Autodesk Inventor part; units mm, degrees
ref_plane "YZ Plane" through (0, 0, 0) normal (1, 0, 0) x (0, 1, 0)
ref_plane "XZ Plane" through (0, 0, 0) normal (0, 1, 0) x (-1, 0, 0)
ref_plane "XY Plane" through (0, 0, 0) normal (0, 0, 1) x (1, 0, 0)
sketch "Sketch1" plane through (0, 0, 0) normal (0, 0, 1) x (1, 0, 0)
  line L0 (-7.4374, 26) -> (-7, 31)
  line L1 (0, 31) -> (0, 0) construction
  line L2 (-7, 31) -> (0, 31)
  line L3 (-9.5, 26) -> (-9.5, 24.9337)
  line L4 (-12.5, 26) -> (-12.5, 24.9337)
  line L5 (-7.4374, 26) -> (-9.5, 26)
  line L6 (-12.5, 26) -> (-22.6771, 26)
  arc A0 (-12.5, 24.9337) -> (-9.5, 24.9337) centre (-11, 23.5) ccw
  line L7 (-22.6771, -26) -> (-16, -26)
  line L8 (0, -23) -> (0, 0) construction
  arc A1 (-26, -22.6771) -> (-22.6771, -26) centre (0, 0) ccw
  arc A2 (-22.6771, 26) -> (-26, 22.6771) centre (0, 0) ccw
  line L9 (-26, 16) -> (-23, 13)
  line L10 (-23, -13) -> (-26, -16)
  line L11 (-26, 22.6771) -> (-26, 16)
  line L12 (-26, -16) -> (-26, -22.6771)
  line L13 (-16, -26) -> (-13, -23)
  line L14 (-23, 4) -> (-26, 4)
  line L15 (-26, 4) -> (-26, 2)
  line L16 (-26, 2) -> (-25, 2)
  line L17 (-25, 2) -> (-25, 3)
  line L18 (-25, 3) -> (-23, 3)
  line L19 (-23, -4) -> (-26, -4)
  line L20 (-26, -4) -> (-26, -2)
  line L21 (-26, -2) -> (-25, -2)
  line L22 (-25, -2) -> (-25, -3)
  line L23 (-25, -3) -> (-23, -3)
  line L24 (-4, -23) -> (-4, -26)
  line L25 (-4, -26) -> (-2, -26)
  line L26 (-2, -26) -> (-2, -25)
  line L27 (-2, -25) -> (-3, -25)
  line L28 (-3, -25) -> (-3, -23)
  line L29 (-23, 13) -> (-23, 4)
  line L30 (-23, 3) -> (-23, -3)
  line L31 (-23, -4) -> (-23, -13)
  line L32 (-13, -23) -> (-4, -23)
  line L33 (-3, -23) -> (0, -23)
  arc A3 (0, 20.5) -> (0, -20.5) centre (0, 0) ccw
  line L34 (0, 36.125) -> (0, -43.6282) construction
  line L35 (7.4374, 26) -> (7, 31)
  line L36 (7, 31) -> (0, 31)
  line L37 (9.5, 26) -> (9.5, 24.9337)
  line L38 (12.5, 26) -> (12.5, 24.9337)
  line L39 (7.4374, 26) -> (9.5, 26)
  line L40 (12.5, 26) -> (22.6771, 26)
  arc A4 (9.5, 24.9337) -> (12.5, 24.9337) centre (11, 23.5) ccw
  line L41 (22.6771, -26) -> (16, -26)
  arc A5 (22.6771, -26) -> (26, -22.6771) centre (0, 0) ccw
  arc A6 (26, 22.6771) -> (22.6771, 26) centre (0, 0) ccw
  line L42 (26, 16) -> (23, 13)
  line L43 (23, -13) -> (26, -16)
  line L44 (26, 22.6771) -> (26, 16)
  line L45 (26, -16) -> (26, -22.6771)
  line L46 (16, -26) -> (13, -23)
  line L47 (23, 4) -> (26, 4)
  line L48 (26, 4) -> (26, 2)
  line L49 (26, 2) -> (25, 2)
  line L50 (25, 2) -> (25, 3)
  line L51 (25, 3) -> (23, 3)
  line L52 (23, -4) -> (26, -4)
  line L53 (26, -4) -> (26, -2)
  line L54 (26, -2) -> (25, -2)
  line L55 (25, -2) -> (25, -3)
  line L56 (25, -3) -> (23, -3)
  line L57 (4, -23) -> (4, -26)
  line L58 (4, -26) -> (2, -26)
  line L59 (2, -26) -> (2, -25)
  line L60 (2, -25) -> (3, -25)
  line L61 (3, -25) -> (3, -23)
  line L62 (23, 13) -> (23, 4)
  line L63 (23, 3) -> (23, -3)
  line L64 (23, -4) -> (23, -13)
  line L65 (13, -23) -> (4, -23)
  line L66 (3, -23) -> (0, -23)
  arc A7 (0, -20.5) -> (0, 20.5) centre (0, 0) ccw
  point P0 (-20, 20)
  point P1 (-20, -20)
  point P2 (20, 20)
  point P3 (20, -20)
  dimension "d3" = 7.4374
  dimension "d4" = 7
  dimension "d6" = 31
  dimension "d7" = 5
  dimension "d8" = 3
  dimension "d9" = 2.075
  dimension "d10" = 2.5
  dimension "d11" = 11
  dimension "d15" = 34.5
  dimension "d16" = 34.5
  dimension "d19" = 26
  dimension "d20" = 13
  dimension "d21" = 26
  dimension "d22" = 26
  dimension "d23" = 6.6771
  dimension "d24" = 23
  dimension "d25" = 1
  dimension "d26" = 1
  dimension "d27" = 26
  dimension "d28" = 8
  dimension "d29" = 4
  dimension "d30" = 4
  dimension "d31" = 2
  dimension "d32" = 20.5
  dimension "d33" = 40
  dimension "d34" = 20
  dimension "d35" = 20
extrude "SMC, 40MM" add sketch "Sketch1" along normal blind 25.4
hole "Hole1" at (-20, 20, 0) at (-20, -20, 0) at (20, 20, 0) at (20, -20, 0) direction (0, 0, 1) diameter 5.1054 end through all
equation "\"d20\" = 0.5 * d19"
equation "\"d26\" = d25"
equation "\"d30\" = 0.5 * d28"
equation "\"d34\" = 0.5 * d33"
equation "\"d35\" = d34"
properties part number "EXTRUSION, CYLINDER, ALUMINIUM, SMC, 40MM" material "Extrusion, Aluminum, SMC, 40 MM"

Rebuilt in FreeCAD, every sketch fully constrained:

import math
import FreeCAD as App
import Part
import Sketcher
from FreeCAD import Vector
Q = App.Units.Quantity

doc = App.newDocument("Part")
body = doc.addObject("PartDesign::Body", "Body")

# Sketch on XY plane
sketch1 = body.newObject("Sketcher::SketchObject", "Sketch")
sketch1.AttachmentSupport = (doc.getObject("XY_Plane"), [""])
sketch1.MapMode = "FlatFace"
sketch1.addGeometry(Part.LineSegment(Vector(-7, 31, 0), Vector(-7.4, 26, 0)), False)
sketch1.addGeometry(Part.LineSegment(Vector(-7.4, 26, 0), Vector(-9.5, 26, 0)), False)
sketch1.addGeometry(Part.LineSegment(Vector(-9.5, 26, 0), Vector(-9.5, 24.9, 0)), False)
sketch1.addGeometry(Part.ArcOfCircle(Part.Circle(Vector(-11, 23.5, 0), Vector(0, 0, 1), 2.1), math.radians(136), math.radians(404)), False)
sketch1.addGeometry(Part.LineSegment(Vector(-12.5, 24.9, 0), Vector(-12.5, 26, 0)), False)
sketch1.addGeometry(Part.LineSegment(Vector(-12.5, 26, 0), Vector(-22.7, 26, 0)), False)
sketch1.addGeometry(Part.ArcOfCircle(Part.Circle(Vector(0, 0, 0), Vector(0, 0, 1), 34.5), math.radians(131.09), math.radians(138.91)), False)
sketch1.addGeometry(Part.LineSegment(Vector(-26, 22.7, 0), Vector(-26, 16, 0)), False)
sketch1.addGeometry(Part.LineSegment(Vector(-26, 16, 0), Vector(-23, 13, 0)), False)
sketch1.addGeometry(Part.LineSegment(Vector(-23, 13, 0), Vector(-23, 4, 0)), False)
sketch1.addGeometry(Part.LineSegment(Vector(-23, 4, 0), Vector(-26, 4, 0)), False)
sketch1.addGeometry(Part.LineSegment(Vector(-26, 4, 0), Vector(-26, 2, 0)), False)
sketch1.addGeometry(Part.LineSegment(Vector(-26, 2, 0), Vector(-25, 2, 0)), False)
sketch1.addGeometry(Part.LineSegment(Vector(-25, 2, 0), Vector(-25, 3, 0)), False)
sketch1.addGeometry(Part.LineSegment(Vector(-25, 3, 0), Vector(-23, 3, 0)), False)
sketch1.addGeometry(Part.LineSegment(Vector(-23, 3, 0), Vector(-23, -3, 0)), False)
sketch1.addGeometry(Part.LineSegment(Vector(-23, -3, 0), Vector(-25, -3, 0)), False)
sketch1.addGeometry(Part.LineSegment(Vector(-25, -3, 0), Vector(-25, -2, 0)), False)
sketch1.addGeometry(Part.LineSegment(Vector(-25, -2, 0), Vector(-26, -2, 0)), False)
sketch1.addGeometry(Part.LineSegment(Vector(-26, -2, 0), Vector(-26, -4, 0)), False)
sketch1.addGeometry(Part.LineSegment(Vector(-26, -4, 0), Vector(-23, -4, 0)), False)
sketch1.addGeometry(Part.LineSegment(Vector(-23, -4, 0), Vector(-23, -13, 0)), False)
sketch1.addGeometry(Part.LineSegment(Vector(-23, -13, 0), Vector(-26, -16, 0)), False)
sketch1.addGeometry(Part.LineSegment(Vector(-26, -16, 0), Vector(-26, -22.7, 0)), False)
sketch1.addGeometry(Part.ArcOfCircle(Part.Circle(Vector(0, 0, 0), Vector(0, 0, 1), 34.5), math.radians(-138.91), math.radians(-131.09)), False)
sketch1.addGeometry(Part.LineSegment(Vector(-22.7, -26, 0), Vector(-16, -26, 0)), False)
sketch1.addGeometry(Part.LineSegment(Vector(-16, -26, 0), Vector(-13, -23, 0)), False)
sketch1.addGeometry(Part.LineSegment(Vector(-13, -23, 0), Vector(-4, -23, 0)), False)
sketch1.addGeometry(Part.LineSegment(Vector(-4, -23, 0), Vector(-4, -26, 0)), False)
sketch1.addGeometry(Part.LineSegment(Vector(-4, -26, 0), Vector(-2, -26, 0)), False)
sketch1.addGeometry(Part.LineSegment(Vector(-2, -26, 0), Vector(-2, -25, 0)), False)
sketch1.addGeometry(Part.LineSegment(Vector(-2, -25, 0), Vector(-3, -25, 0)), False)
sketch1.addGeometry(Part.LineSegment(Vector(-3, -25, 0), Vector(-3, -23, 0)), False)
sketch1.addGeometry(Part.LineSegment(Vector(-3, -23, 0), Vector(3, -23, 0)), False)
sketch1.addGeometry(Part.LineSegment(Vector(3, -23, 0), Vector(3, -25, 0)), False)
sketch1.addGeometry(Part.LineSegment(Vector(3, -25, 0), Vector(2, -25, 0)), False)
sketch1.addGeometry(Part.LineSegment(Vector(2, -25, 0), Vector(2, -26, 0)), False)
sketch1.addGeometry(Part.LineSegment(Vector(2, -26, 0), Vector(4, -26, 0)), False)
sketch1.addGeometry(Part.LineSegment(Vector(4, -26, 0), Vector(4, -23, 0)), False)
sketch1.addGeometry(Part.LineSegment(Vector(4, -23, 0), Vector(13, -23, 0)), False)
sketch1.addGeometry(Part.LineSegment(Vector(13, -23, 0), Vector(16, -26, 0)), False)
sketch1.addGeometry(Part.LineSegment(Vector(16, -26, 0), Vector(22.7, -26, 0)), False)
sketch1.addGeometry(Part.ArcOfCircle(Part.Circle(Vector(0, 0, 0), Vector(0, 0, 1), 34.5), math.radians(-48.91), math.radians(-41.09)), False)
sketch1.addGeometry(Part.LineSegment(Vector(26, -22.7, 0), Vector(26, -16, 0)), False)
sketch1.addGeometry(Part.LineSegment(Vector(26, -16, 0), Vector(23, -13, 0)), False)
sketch1.addGeometry(Part.LineSegment(Vector(23, -13, 0), Vector(23, -4, 0)), False)
sketch1.addGeometry(Part.LineSegment(Vector(23, -4, 0), Vector(26, -4, 0)), False)
sketch1.addGeometry(Part.LineSegment(Vector(26, -4, 0), Vector(26, -2, 0)), False)
sketch1.addGeometry(Part.LineSegment(Vector(26, -2, 0), Vector(25, -2, 0)), False)
sketch1.addGeometry(Part.LineSegment(Vector(25, -2, 0), Vector(25, -3, 0)), False)
sketch1.addGeometry(Part.LineSegment(Vector(25, -3, 0), Vector(23, -3, 0)), False)
sketch1.addGeometry(Part.LineSegment(Vector(23, -3, 0), Vector(23, 3, 0)), False)
sketch1.addGeometry(Part.LineSegment(Vector(23, 3, 0), Vector(25, 3, 0)), False)
sketch1.addGeometry(Part.LineSegment(Vector(25, 3, 0), Vector(25, 2, 0)), False)
sketch1.addGeometry(Part.LineSegment(Vector(25, 2, 0), Vector(26, 2, 0)), False)
sketch1.addGeometry(Part.LineSegment(Vector(26, 2, 0), Vector(26, 4, 0)), False)
sketch1.addGeometry(Part.LineSegment(Vector(26, 4, 0), Vector(23, 4, 0)), False)
sketch1.addGeometry(Part.LineSegment(Vector(23, 4, 0), Vector(23, 13, 0)), False)
sketch1.addGeometry(Part.LineSegment(Vector(23, 13, 0), Vector(26, 16, 0)), False)
sketch1.addGeometry(Part.LineSegment(Vector(26, 16, 0), Vector(26, 22.7, 0)), False)
sketch1.addGeometry(Part.ArcOfCircle(Part.Circle(Vector(0, 0, 0), Vector(0, 0, 1), 34.5), math.radians(41.09), math.radians(48.91)), False)
sketch1.addGeometry(Part.LineSegment(Vector(22.7, 26, 0), Vector(12.5, 26, 0)), False)
sketch1.addGeometry(Part.LineSegment(Vector(12.5, 26, 0), Vector(12.5, 24.9, 0)), False)
sketch1.addGeometry(Part.ArcOfCircle(Part.Circle(Vector(11, 23.5, 0), Vector(0, 0, 1), 2.1), math.radians(136), math.radians(404)), False)
sketch1.addGeometry(Part.LineSegment(Vector(9.5, 24.9, 0), Vector(9.5, 26, 0)), False)
sketch1.addGeometry(Part.LineSegment(Vector(9.5, 26, 0), Vector(7.4, 26, 0)), False)
sketch1.addGeometry(Part.LineSegment(Vector(7.4, 26, 0), Vector(7, 31, 0)), False)
sketch1.addGeometry(Part.LineSegment(Vector(7, 31, 0), Vector(-7, 31, 0)), False)
sketch1.addGeometry(Part.Circle(Vector(0, 0, 0), Vector(0, 0, 1), 20.5), False)
sketch1.addConstraint(Sketcher.Constraint("Coincident", 0, 2, 1, 1))
sketch1.addConstraint(Sketcher.Constraint("Coincident", 1, 2, 2, 1))
sketch1.addConstraint(Sketcher.Constraint("Coincident", 2, 2, 3, 2))
sketch1.addConstraint(Sketcher.Constraint("Coincident", 3, 1, 4, 1))
sketch1.addConstraint(Sketcher.Constraint("Coincident", 4, 2, 5, 1))
sketch1.addConstraint(Sketcher.Constraint("Coincident", 5, 2, 6, 1))
sketch1.addConstraint(Sketcher.Constraint("Coincident", 6, 2, 7, 1))
sketch1.addConstraint(Sketcher.Constraint("Coincident", 7, 2, 8, 1))
sketch1.addConstraint(Sketcher.Constraint("Coincident", 8, 2, 9, 1))
sketch1.addConstraint(Sketcher.Constraint("Coincident", 9, 2, 10, 1))
sketch1.addConstraint(Sketcher.Constraint("Coincident", 10, 2, 11, 1))
sketch1.addConstraint(Sketcher.Constraint("Coincident", 11, 2, 12, 1))
sketch1.addConstraint(Sketcher.Constraint("Coincident", 12, 2, 13, 1))
sketch1.addConstraint(Sketcher.Constraint("Coincident", 13, 2, 14, 1))
sketch1.addConstraint(Sketcher.Constraint("Coincident", 14, 2, 15, 1))
sketch1.addConstraint(Sketcher.Constraint("Coincident", 15, 2, 16, 1))
sketch1.addConstraint(Sketcher.Constraint("Coincident", 16, 2, 17, 1))
sketch1.addConstraint(Sketcher.Constraint("Coincident", 17, 2, 18, 1))
sketch1.addConstraint(Sketcher.Constraint("Coincident", 18, 2, 19, 1))
sketch1.addConstraint(Sketcher.Constraint("Coincident", 19, 2, 20, 1))
sketch1.addConstraint(Sketcher.Constraint("Coincident", 20, 2, 21, 1))
sketch1.addConstraint(Sketcher.Constraint("Coincident", 21, 2, 22, 1))
sketch1.addConstraint(Sketcher.Constraint("Coincident", 22, 2, 23, 1))
sketch1.addConstraint(Sketcher.Constraint("Coincident", 23, 2, 24, 1))
sketch1.addConstraint(Sketcher.Constraint("Coincident", 24, 2, 25, 1))
sketch1.addConstraint(Sketcher.Constraint("Coincident", 25, 2, 26, 1))
sketch1.addConstraint(Sketcher.Constraint("Coincident", 26, 2, 27, 1))
sketch1.addConstraint(Sketcher.Constraint("Coincident", 27, 2, 28, 1))
sketch1.addConstraint(Sketcher.Constraint("Coincident", 28, 2, 29, 1))
sketch1.addConstraint(Sketcher.Constraint("Coincident", 29, 2, 30, 1))
sketch1.addConstraint(Sketcher.Constraint("Coincident", 30, 2, 31, 1))
sketch1.addConstraint(Sketcher.Constraint("Coincident", 31, 2, 32, 1))
sketch1.addConstraint(Sketcher.Constraint("Coincident", 32, 2, 33, 1))
sketch1.addConstraint(Sketcher.Constraint("Coincident", 33, 2, 34, 1))
sketch1.addConstraint(Sketcher.Constraint("Coincident", 34, 2, 35, 1))
sketch1.addConstraint(Sketcher.Constraint("Coincident", 35, 2, 36, 1))
sketch1.addConstraint(Sketcher.Constraint("Coincident", 36, 2, 37, 1))
sketch1.addConstraint(Sketcher.Constraint("Coincident", 37, 2, 38, 1))
sketch1.addConstraint(Sketcher.Constraint("Coincident", 38, 2, 39, 1))
sketch1.addConstraint(Sketcher.Constraint("Coincident", 39, 2, 40, 1))
sketch1.addConstraint(Sketcher.Constraint("Coincident", 40, 2, 41, 1))
sketch1.addConstraint(Sketcher.Constraint("Coincident", 41, 2, 42, 1))
sketch1.addConstraint(Sketcher.Constraint("Coincident", 42, 2, 43, 1))
sketch1.addConstraint(Sketcher.Constraint("Coincident", 43, 2, 44, 1))
sketch1.addConstraint(Sketcher.Constraint("Coincident", 44, 2, 45, 1))
sketch1.addConstraint(Sketcher.Constraint("Coincident", 45, 2, 46, 1))
sketch1.addConstraint(Sketcher.Constraint("Coincident", 46, 2, 47, 1))
sketch1.addConstraint(Sketcher.Constraint("Coincident", 47, 2, 48, 1))
sketch1.addConstraint(Sketcher.Constraint("Coincident", 48, 2, 49, 1))
sketch1.addConstraint(Sketcher.Constraint("Coincident", 49, 2, 50, 1))
sketch1.addConstraint(Sketcher.Constraint("Coincident", 50, 2, 51, 1))
sketch1.addConstraint(Sketcher.Constraint("Coincident", 51, 2, 52, 1))
sketch1.addConstraint(Sketcher.Constraint("Coincident", 52, 2, 53, 1))
sketch1.addConstraint(Sketcher.Constraint("Coincident", 53, 2, 54, 1))
sketch1.addConstraint(Sketcher.Constraint("Coincident", 54, 2, 55, 1))
sketch1.addConstraint(Sketcher.Constraint("Coincident", 55, 2, 56, 1))
sketch1.addConstraint(Sketcher.Constraint("Coincident", 56, 2, 57, 1))
sketch1.addConstraint(Sketcher.Constraint("Coincident", 57, 2, 58, 1))
sketch1.addConstraint(Sketcher.Constraint("Coincident", 58, 2, 59, 1))
sketch1.addConstraint(Sketcher.Constraint("Coincident", 59, 2, 60, 1))
sketch1.addConstraint(Sketcher.Constraint("Coincident", 60, 2, 61, 1))
sketch1.addConstraint(Sketcher.Constraint("Coincident", 61, 2, 62, 1))
sketch1.addConstraint(Sketcher.Constraint("Coincident", 62, 2, 63, 2))
sketch1.addConstraint(Sketcher.Constraint("Coincident", 63, 1, 64, 1))
sketch1.addConstraint(Sketcher.Constraint("Coincident", 64, 2, 65, 1))
sketch1.addConstraint(Sketcher.Constraint("Coincident", 65, 2, 66, 1))
sketch1.addConstraint(Sketcher.Constraint("Coincident", 66, 2, 67, 1))
sketch1.addConstraint(Sketcher.Constraint("Coincident", 67, 2, 0, 1))
sketch1.addConstraint(Sketcher.Constraint("Horizontal", 1))
sketch1.addConstraint(Sketcher.Constraint("Vertical", 2))
sketch1.addConstraint(Sketcher.Constraint("Vertical", 4))
sketch1.addConstraint(Sketcher.Constraint("Horizontal", 5))
sketch1.addConstraint(Sketcher.Constraint("Vertical", 7))
sketch1.addConstraint(Sketcher.Constraint("Vertical", 9))
sketch1.addConstraint(Sketcher.Constraint("Horizontal", 10))
sketch1.addConstraint(Sketcher.Constraint("Vertical", 11))
sketch1.addConstraint(Sketcher.Constraint("Horizontal", 12))
sketch1.addConstraint(Sketcher.Constraint("Vertical", 13))
sketch1.addConstraint(Sketcher.Constraint("Horizontal", 14))
sketch1.addConstraint(Sketcher.Constraint("Vertical", 15))
sketch1.addConstraint(Sketcher.Constraint("Horizontal", 16))
sketch1.addConstraint(Sketcher.Constraint("Vertical", 17))
sketch1.addConstraint(Sketcher.Constraint("Horizontal", 18))
sketch1.addConstraint(Sketcher.Constraint("Vertical", 19))
sketch1.addConstraint(Sketcher.Constraint("Horizontal", 20))
sketch1.addConstraint(Sketcher.Constraint("Vertical", 21))
sketch1.addConstraint(Sketcher.Constraint("Vertical", 23))
sketch1.addConstraint(Sketcher.Constraint("Horizontal", 25))
sketch1.addConstraint(Sketcher.Constraint("Horizontal", 27))
sketch1.addConstraint(Sketcher.Constraint("Vertical", 28))
sketch1.addConstraint(Sketcher.Constraint("Horizontal", 29))
sketch1.addConstraint(Sketcher.Constraint("Vertical", 30))
sketch1.addConstraint(Sketcher.Constraint("Horizontal", 31))
sketch1.addConstraint(Sketcher.Constraint("Vertical", 32))
sketch1.addConstraint(Sketcher.Constraint("Horizontal", 33))
sketch1.addConstraint(Sketcher.Constraint("Vertical", 34))
sketch1.addConstraint(Sketcher.Constraint("Horizontal", 35))
sketch1.addConstraint(Sketcher.Constraint("Vertical", 36))
sketch1.addConstraint(Sketcher.Constraint("Horizontal", 37))
sketch1.addConstraint(Sketcher.Constraint("Vertical", 38))
sketch1.addConstraint(Sketcher.Constraint("Horizontal", 39))
sketch1.addConstraint(Sketcher.Constraint("Horizontal", 41))
sketch1.addConstraint(Sketcher.Constraint("Vertical", 43))
sketch1.addConstraint(Sketcher.Constraint("Vertical", 45))
sketch1.addConstraint(Sketcher.Constraint("Horizontal", 46))
sketch1.addConstraint(Sketcher.Constraint("Vertical", 47))
sketch1.addConstraint(Sketcher.Constraint("Horizontal", 48))
sketch1.addConstraint(Sketcher.Constraint("Vertical", 49))
sketch1.addConstraint(Sketcher.Constraint("Horizontal", 50))
sketch1.addConstraint(Sketcher.Constraint("Vertical", 51))
sketch1.addConstraint(Sketcher.Constraint("Horizontal", 52))
sketch1.addConstraint(Sketcher.Constraint("Vertical", 53))
sketch1.addConstraint(Sketcher.Constraint("Horizontal", 54))
sketch1.addConstraint(Sketcher.Constraint("Vertical", 55))
sketch1.addConstraint(Sketcher.Constraint("Horizontal", 56))
sketch1.addConstraint(Sketcher.Constraint("Vertical", 57))
sketch1.addConstraint(Sketcher.Constraint("Vertical", 59))
sketch1.addConstraint(Sketcher.Constraint("Horizontal", 61))
sketch1.addConstraint(Sketcher.Constraint("Vertical", 62))
sketch1.addConstraint(Sketcher.Constraint("Vertical", 64))
sketch1.addConstraint(Sketcher.Constraint("Horizontal", 65))
sketch1.addConstraint(Sketcher.Constraint("Horizontal", 67))
sketch1.addConstraint(Sketcher.Constraint("Coincident", 6, 3, -1, 1))
sketch1.addConstraint(Sketcher.Constraint("Coincident", 24, 3, -1, 1))
sketch1.addConstraint(Sketcher.Constraint("Coincident", 42, 3, -1, 1))
sketch1.addConstraint(Sketcher.Constraint("Coincident", 60, 3, -1, 1))
sketch1.addConstraint(Sketcher.Constraint("Coincident", 68, 3, -1, 1))
sketch1.addConstraint(Sketcher.Constraint("Equal", 6, 24))
sketch1.addConstraint(Sketcher.Constraint("Equal", 24, 42))
sketch1.addConstraint(Sketcher.Constraint("Equal", 42, 60))
sketch1.addConstraint(Sketcher.Constraint("Equal", 3, 63))
sketch1.addConstraint(Sketcher.Constraint("Symmetric", 7, 2, 43, 2, -1, 1))
sketch1.addConstraint(Sketcher.Constraint("Symmetric", 8, 2, 44, 2, -1, 1))
sketch1.addConstraint(Sketcher.Constraint("Symmetric", 10, 2, 46, 2, -1, 1))
sketch1.addConstraint(Sketcher.Constraint("Symmetric", 12, 2, 48, 2, -1, 1))
sketch1.addConstraint(Sketcher.Constraint("Symmetric", 14, 2, 50, 2, -1, 1))
sketch1.addConstraint(Sketcher.Constraint("Symmetric", 16, 2, 52, 2, -1, 1))
sketch1.addConstraint(Sketcher.Constraint("Symmetric", 18, 2, 54, 2, -1, 1))
sketch1.addConstraint(Sketcher.Constraint("Symmetric", 20, 2, 56, 2, -1, 1))
sketch1.addConstraint(Sketcher.Constraint("Symmetric", 22, 2, 58, 2, -1, 1))
sketch1.addConstraint(Sketcher.Constraint("Symmetric", 3, 3, 63, 3, -2))
sketch1.addConstraint(Sketcher.Constraint("Symmetric", 31, 2, 34, 2, -2))
sketch1.addConstraint(Sketcher.Constraint("Symmetric", 29, 2, 36, 2, -2))
sketch1.addConstraint(Sketcher.Constraint("Symmetric", 27, 2, 38, 2, -2))
sketch1.addConstraint(Sketcher.Constraint("Symmetric", 25, 2, 40, 2, -2))
sketch1.addConstraint(Sketcher.Constraint("Symmetric", 22, 2, 43, 2, -2))
sketch1.addConstraint(Sketcher.Constraint("Symmetric", 21, 2, 44, 2, -2))
sketch1.addConstraint(Sketcher.Constraint("Symmetric", 19, 2, 46, 2, -2))
sketch1.addConstraint(Sketcher.Constraint("Symmetric", 17, 2, 48, 2, -2))
sketch1.addConstraint(Sketcher.Constraint("Symmetric", 4, 2, 61, 2, -2))
sketch1.addConstraint(Sketcher.Constraint("Symmetric", 1, 2, 64, 2, -2))
sketch1.addConstraint(Sketcher.Constraint("Perpendicular", 8, 22))
sketch1.addConstraint(Sketcher.Constraint("Parallel", 22, 26))
sketch1.addConstraint(Sketcher.Constraint("Perpendicular", 26, 40))
sketch1.addConstraint(Sketcher.Constraint("Perpendicular", 44, 58))
sketch1.addConstraint(Sketcher.Constraint("Horizontal", 2, 2, 3, 1))
sketch1.addConstraint(Sketcher.Constraint("Horizontal", 1, 2, 4, 2))
sketch1.addConstraint(Sketcher.Constraint("Horizontal", 25, 2, 28, 2))
sketch1.addConstraint(Sketcher.Constraint("Horizontal", 27, 2, 32, 2))
sketch1.addConstraint(Sketcher.Constraint("Horizontal", 16, 2, 49, 2))
sketch1.addConstraint(Sketcher.Constraint("Vertical", 7, 2, 10, 2))
sketch1.addConstraint(Sketcher.Constraint("Vertical", 9, 2, 14, 2))
sketch1.addConstraint(Sketcher.Constraint("Vertical", 5, 2, 24, 2))
sketch1.addConstraint(Sketcher.Constraint("Equal", 16, 29))
sketch1.addConstraint(Sketcher.Constraint("Equal", 18, 31))
sketch1.addConstraint(Sketcher.Constraint("Equal", 1, 65))
sketch1.addConstraint(Sketcher.Constraint("Equal", 41, 7))
sketch1.addConstraint(Sketcher.Constraint("Equal", 39, 9))
sketch1.addConstraint(Sketcher.Constraint("Equal", 52, 11))
sketch1.addConstraint(Sketcher.Constraint("Equal", 54, 13))
sketch1.addConstraint(Sketcher.Constraint("Equal", 33, 15))
sketch1.addConstraint(Sketcher.Constraint("Equal", 56, 28))
sketch1.addConstraint(Sketcher.Constraint("Equal", 17, 30))
sketch1.addConstraint(Sketcher.Constraint("Equal", 0, 66))
sketch1.addConstraint(Sketcher.Constraint("Diameter", 68, Q("41 mm")))
sketch1.addConstraint(Sketcher.Constraint("Radius", 6, Q("34.5 mm")))
sketch1.addConstraint(Sketcher.Constraint("DistanceX", 10, 2, 10, 1, Q("3 mm")))
sketch1.addConstraint(Sketcher.Constraint("DistanceX", 12, 1, 12, 2, Q("1 mm")))
sketch1.addConstraint(Sketcher.Constraint("DistanceX", 3, 3, -1, 1, Q("11 mm")))
sketch1.addConstraint(Sketcher.Constraint("DistanceY", -1, 1, 0, 2, Q("26 mm")))
sketch1.addConstraint(Sketcher.Constraint("DistanceY", -1, 1, 8, 2, Q("13 mm")))
sketch1.addConstraint(Sketcher.Constraint("DistanceY", -1, 1, 9, 2, Q("4 mm")))
sketch1.addConstraint(Sketcher.Constraint("DistanceX", -1, 1, 66, 2, Q("7 mm")))
sketch1.addConstraint(Sketcher.Constraint("DistanceY", -1, 1, 66, 2, Q("31 mm")))
sketch1.addConstraint(Sketcher.Constraint("Radius", 3, Q("2.075 mm")))
sketch1.addConstraint(Sketcher.Constraint("Angle", 0, Q("-94.9995 deg")))
sketch1.addConstraint(Sketcher.Constraint("DistanceY", -1, 1, 3, 3, Q("23.5 mm")))
sketch1.addConstraint(Sketcher.Constraint("DistanceX", 1, 2, -1, 1, Q("9.5 mm")))
pad1 = body.newObject("PartDesign::Pad", "Pad")
pad1.Profile = sketch1
pad1.Length = 25.4

# Sketch on XY plane
sketch2 = body.newObject("Sketcher::SketchObject", "Sketch001")
sketch2.AttachmentSupport = (doc.getObject("XY_Plane"), [""])
sketch2.MapMode = "FlatFace"
sketch2.addGeometry(Part.Circle(Vector(-20, 20, 0), Vector(0, 0, 1), 2.6), False)
sketch2.addGeometry(Part.Circle(Vector(-20, -20, 0), Vector(0, 0, 1), 2.6), False)
sketch2.addGeometry(Part.Circle(Vector(20, 20, 0), Vector(0, 0, 1), 2.6), False)
sketch2.addGeometry(Part.Circle(Vector(20, -20, 0), Vector(0, 0, 1), 2.6), False)
sketch2.addConstraint(Sketcher.Constraint("Equal", 0, 1))
sketch2.addConstraint(Sketcher.Constraint("Equal", 1, 2))
sketch2.addConstraint(Sketcher.Constraint("Equal", 2, 3))
sketch2.addConstraint(Sketcher.Constraint("Symmetric", 1, 3, 2, 3, -1, 1))
sketch2.addConstraint(Sketcher.Constraint("Symmetric", 0, 3, 3, 3, -1, 1))
sketch2.addConstraint(Sketcher.Constraint("Symmetric", 0, 3, 2, 3, -2))
sketch2.addConstraint(Sketcher.Constraint("DistanceX", 0, 3, -1, 1, Q("20 mm")))
sketch2.addConstraint(Sketcher.Constraint("DistanceY", -1, 1, 0, 3, Q("20 mm")))
sketch2.addConstraint(Sketcher.Constraint("Diameter", 0, Q("5.1054 mm")))
doc.recompute()
hole = body.newObject("PartDesign::Hole", "Hole")
hole.Profile = sketch2
hole.ThreadType = "None"
hole.Diameter = 5.1054
hole.DepthType = "ThroughAll"
hole.Reversed = True

doc.recompute()
